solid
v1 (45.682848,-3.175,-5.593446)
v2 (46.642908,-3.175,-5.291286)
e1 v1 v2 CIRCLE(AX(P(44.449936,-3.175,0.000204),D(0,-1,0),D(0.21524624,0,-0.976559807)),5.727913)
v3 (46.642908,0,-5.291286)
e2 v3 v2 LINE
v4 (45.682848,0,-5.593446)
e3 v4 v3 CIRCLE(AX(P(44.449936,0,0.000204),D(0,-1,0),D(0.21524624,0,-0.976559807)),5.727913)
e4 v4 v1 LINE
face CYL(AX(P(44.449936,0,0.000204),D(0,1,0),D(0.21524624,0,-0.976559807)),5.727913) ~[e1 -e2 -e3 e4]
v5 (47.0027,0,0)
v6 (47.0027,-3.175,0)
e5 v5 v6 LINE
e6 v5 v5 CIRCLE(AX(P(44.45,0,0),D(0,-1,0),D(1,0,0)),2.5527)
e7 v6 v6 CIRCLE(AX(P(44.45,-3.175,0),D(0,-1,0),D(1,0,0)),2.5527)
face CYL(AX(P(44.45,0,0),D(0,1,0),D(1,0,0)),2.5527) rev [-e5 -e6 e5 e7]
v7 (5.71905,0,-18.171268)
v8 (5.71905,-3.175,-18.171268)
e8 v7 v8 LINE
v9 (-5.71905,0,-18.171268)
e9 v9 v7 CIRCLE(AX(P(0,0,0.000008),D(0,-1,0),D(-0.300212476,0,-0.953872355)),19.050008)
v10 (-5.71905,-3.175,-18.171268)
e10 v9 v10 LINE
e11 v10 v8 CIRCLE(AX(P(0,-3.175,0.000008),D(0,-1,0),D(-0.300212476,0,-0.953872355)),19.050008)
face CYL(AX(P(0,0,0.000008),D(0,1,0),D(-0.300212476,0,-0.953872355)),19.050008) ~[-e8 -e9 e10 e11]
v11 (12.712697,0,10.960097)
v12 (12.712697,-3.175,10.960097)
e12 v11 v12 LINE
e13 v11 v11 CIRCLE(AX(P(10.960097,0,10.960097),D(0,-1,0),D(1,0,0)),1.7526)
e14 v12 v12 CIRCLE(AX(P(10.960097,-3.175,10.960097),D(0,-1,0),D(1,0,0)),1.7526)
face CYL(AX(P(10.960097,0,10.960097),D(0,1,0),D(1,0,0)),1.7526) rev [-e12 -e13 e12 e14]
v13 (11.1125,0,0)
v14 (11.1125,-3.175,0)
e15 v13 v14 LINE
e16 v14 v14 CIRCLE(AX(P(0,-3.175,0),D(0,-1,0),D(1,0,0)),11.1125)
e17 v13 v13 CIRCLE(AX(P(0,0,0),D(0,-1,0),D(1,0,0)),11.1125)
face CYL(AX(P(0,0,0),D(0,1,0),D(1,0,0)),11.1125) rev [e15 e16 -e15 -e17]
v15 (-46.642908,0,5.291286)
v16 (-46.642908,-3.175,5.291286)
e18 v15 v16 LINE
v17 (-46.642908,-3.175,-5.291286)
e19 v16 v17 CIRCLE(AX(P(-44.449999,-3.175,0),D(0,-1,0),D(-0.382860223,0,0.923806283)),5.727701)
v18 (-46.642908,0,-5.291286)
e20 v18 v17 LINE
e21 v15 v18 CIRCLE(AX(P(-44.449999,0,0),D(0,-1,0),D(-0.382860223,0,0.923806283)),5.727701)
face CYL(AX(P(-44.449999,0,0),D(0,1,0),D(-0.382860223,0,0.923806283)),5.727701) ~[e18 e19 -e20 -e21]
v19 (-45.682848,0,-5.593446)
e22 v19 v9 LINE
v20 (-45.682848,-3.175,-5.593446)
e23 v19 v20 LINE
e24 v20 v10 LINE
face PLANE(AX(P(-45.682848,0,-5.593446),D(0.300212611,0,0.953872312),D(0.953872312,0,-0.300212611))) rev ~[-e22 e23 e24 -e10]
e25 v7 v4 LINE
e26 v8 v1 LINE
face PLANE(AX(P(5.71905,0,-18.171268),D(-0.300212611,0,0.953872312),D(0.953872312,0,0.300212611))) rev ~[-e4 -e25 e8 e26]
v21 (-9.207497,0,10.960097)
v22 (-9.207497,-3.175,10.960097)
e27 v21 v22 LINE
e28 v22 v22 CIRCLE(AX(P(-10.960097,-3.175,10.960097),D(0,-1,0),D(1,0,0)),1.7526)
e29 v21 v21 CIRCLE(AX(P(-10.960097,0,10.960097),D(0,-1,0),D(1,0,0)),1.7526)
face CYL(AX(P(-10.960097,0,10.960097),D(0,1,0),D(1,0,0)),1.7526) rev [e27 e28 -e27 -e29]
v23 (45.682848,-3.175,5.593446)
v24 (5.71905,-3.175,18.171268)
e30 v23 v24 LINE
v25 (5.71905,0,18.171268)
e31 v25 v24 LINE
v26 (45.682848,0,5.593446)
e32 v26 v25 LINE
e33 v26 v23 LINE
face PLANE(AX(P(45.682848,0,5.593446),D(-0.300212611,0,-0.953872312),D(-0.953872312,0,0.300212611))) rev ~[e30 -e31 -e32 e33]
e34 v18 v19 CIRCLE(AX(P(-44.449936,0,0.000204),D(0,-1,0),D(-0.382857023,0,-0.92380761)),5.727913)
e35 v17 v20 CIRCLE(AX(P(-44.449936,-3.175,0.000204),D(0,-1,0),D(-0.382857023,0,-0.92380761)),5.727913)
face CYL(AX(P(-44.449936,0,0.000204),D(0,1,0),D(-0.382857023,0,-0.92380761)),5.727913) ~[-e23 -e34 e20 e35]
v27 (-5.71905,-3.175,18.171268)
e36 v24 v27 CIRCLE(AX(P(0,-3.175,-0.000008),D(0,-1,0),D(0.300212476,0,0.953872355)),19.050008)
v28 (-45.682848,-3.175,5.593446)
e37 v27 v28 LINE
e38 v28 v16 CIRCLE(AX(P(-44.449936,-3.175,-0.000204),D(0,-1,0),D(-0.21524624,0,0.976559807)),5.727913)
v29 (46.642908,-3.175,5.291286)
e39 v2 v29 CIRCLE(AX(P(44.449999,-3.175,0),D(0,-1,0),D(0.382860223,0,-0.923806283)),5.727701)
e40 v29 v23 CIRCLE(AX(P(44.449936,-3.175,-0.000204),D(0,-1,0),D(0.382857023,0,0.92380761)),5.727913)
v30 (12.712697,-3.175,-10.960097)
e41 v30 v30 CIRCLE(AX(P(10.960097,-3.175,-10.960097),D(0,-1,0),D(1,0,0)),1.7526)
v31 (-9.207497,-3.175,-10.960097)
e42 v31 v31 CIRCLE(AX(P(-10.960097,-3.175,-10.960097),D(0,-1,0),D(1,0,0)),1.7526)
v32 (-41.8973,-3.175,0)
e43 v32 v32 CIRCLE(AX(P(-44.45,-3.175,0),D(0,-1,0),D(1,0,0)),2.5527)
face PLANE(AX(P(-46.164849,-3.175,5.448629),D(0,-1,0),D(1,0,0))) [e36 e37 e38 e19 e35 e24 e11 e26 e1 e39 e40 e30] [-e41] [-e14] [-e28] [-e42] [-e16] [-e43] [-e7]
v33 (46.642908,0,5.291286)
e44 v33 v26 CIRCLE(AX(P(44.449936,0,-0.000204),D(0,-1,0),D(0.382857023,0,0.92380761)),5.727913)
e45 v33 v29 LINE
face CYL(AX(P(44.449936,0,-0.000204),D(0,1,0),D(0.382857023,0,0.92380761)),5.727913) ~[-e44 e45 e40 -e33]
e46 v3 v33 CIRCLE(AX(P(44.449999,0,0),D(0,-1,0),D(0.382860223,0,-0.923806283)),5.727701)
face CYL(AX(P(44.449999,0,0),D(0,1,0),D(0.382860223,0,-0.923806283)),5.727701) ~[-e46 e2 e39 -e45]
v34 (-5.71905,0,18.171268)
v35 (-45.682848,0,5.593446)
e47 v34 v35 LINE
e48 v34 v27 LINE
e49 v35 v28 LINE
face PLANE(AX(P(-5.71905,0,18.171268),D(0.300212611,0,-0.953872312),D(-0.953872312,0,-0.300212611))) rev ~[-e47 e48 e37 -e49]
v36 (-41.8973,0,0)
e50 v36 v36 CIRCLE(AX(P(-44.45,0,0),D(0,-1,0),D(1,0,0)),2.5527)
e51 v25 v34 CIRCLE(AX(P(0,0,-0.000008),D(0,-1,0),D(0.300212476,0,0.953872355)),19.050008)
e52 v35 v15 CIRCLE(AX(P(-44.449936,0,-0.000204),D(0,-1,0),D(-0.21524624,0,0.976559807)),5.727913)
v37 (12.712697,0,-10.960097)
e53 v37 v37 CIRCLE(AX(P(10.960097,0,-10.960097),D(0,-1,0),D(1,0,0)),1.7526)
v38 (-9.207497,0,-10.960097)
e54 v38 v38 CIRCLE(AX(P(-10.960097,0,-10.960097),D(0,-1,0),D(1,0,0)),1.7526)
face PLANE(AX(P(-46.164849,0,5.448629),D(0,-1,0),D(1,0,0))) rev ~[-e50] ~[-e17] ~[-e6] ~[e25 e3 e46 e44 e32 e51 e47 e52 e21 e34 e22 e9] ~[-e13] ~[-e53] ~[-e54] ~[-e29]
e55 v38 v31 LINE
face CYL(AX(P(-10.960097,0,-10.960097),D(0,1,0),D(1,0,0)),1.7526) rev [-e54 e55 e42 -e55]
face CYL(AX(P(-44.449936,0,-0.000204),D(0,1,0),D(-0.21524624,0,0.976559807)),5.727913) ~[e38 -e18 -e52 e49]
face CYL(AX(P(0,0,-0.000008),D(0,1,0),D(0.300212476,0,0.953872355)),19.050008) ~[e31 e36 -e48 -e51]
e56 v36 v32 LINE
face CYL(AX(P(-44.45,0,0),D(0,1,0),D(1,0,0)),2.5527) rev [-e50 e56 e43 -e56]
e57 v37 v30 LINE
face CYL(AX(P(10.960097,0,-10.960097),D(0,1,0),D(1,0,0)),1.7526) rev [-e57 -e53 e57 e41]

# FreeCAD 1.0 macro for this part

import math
import FreeCAD as App
import Part
import Sketcher
from FreeCAD import Vector
Q = App.Units.Quantity

doc = App.newDocument("Part")
body = doc.addObject("PartDesign::Body", "Body")

# Sketch on XZ plane
sketch1 = doc.addObject("Sketcher::SketchObject", "Sketch")
body.addObject(sketch1)
sketch1.AttachmentSupport = (doc.XZ_Plane, [""])
sketch1.MapMode = "FlatFace"
sketch1.addGeometry([
    Part.ArcOfCircle(Part.Circle(Vector(-44.449936, -0.000204, 0), Vector(0, 0, 1), 5.727913), math.radians(102.429974), math.radians(112.510766)),  # 0
    Part.ArcOfCircle(Part.Circle(Vector(-44.449999, 0, 0), Vector(0, 0, 1), 5.727701), math.radians(112.510964), math.radians(247.489036)),  # 1
    Part.ArcOfCircle(Part.Circle(Vector(-44.449936, 0.000204, 0), Vector(0, 0, 1), 5.727913), math.radians(-112.510766), math.radians(-102.429974)),  # 2
    Part.LineSegment(Vector(-45.682848, -5.593446, 0), Vector(-5.71905, -18.171268, 0)),  # 3
    Part.ArcOfCircle(Part.Circle(Vector(0, 0.000008, 0), Vector(0, 0, 1), 19.050008), math.radians(-107.470365), math.radians(-72.529635)),  # 4
    Part.LineSegment(Vector(5.71905, -18.171268, 0), Vector(45.682848, -5.593446, 0)),  # 5
    Part.ArcOfCircle(Part.Circle(Vector(44.449936, 0.000204, 0), Vector(0, 0, 1), 5.727913), math.radians(-77.570026), math.radians(-67.489234)),  # 6
    Part.ArcOfCircle(Part.Circle(Vector(44.449999, 0, 0), Vector(0, 0, 1), 5.727701), math.radians(-67.489036), math.radians(67.489036)),  # 7
    Part.ArcOfCircle(Part.Circle(Vector(44.449936, -0.000204, 0), Vector(0, 0, 1), 5.727913), math.radians(67.489234), math.radians(77.570026)),  # 8
    Part.LineSegment(Vector(45.682848, 5.593446, 0), Vector(5.71905, 18.171268, 0)),  # 9
    Part.ArcOfCircle(Part.Circle(Vector(0, -0.000008, 0), Vector(0, 0, 1), 19.050008), math.radians(72.529635), math.radians(107.470365)),  # 10
    Part.LineSegment(Vector(-5.71905, 18.171268, 0), Vector(-45.682848, 5.593446, 0)),  # 11
    Part.Circle(Vector(-10.960097, -10.960097, 0), Vector(0, 0, 1), 1.7526),  # 12
    Part.Circle(Vector(10.960097, -10.960097, 0), Vector(0, 0, 1), 1.7526),  # 13
    Part.Circle(Vector(-44.45, 0, 0), Vector(0, 0, 1), 2.5527),  # 14
    Part.Circle(Vector(-10.960097, 10.960097, 0), Vector(0, 0, 1), 1.7526),  # 15
    Part.Circle(Vector(0, 0, 0), Vector(0, 0, 1), 11.1125),  # 16
    Part.Circle(Vector(44.45, 0, 0), Vector(0, 0, 1), 2.5527),  # 17
    Part.Circle(Vector(10.960097, 10.960097, 0), Vector(0, 0, 1), 1.7526),  # 18
], False)
sketch1.addConstraint([
    Sketcher.Constraint("Coincident", 0, 2, 1, 1),
    Sketcher.Constraint("Coincident", 1, 2, 2, 1),
    Sketcher.Constraint("Coincident", 2, 2, 3, 1),
    Sketcher.Constraint("Coincident", 3, 2, 4, 1),
    Sketcher.Constraint("Coincident", 4, 2, 5, 1),
    Sketcher.Constraint("Coincident", 5, 2, 6, 1),
    Sketcher.Constraint("Coincident", 6, 2, 7, 1),
    Sketcher.Constraint("Coincident", 7, 2, 8, 1),
    Sketcher.Constraint("Coincident", 8, 2, 9, 1),
    Sketcher.Constraint("Coincident", 9, 2, 10, 1),
    Sketcher.Constraint("Coincident", 10, 2, 11, 1),
    Sketcher.Constraint("Coincident", 11, 2, 0, 1),
    Sketcher.Constraint("Coincident", 4, 3, -1, 1),
    Sketcher.Constraint("Coincident", 10, 3, -1, 1),
    Sketcher.Constraint("Coincident", 16, 3, -1, 1),
    Sketcher.Constraint("Coincident", 14, 3, 1, 3),
    Sketcher.Constraint("Coincident", 17, 3, 7, 3),
    Sketcher.Constraint("PointOnObject", 1, 3, -1),
    Sketcher.Constraint("PointOnObject", 7, 3, -1),
    Sketcher.Constraint("Diameter", 12, Q("0.138 in")),
    Sketcher.Constraint("Diameter", 13, Q("0.138 in")),
    Sketcher.Constraint("Diameter", 14, Q("0.201 in")),
    Sketcher.Constraint("Diameter", 15, Q("0.138 in")),
    Sketcher.Constraint("Diameter", 16, Q("0.875 in")),
    Sketcher.Constraint("Diameter", 17, Q("0.201 in")),
    Sketcher.Constraint("Diameter", 18, Q("0.138 in")),
    Sketcher.Constraint("Radius", 1, Q("0.2255 in")),
    Sketcher.Constraint("Radius", 7, Q("0.2255 in")),
    Sketcher.Constraint("DistanceX", 1, 3, 7, 3, Q("3.4999999 in")),
    Sketcher.Constraint("DistanceX", 1, 3, -1, 1, Q("1.75 in")),
    Sketcher.Constraint("DistanceX", 12, 3, -1, 1, Q("0.4314999 in")),
    Sketcher.Constraint("DistanceY", 12, 3, -1, 1, Q("0.4314999 in")),
    Sketcher.Constraint("DistanceX", -1, 1, 13, 3, Q("0.4314999 in")),
    Sketcher.Constraint("DistanceY", 13, 3, -1, 1, Q("0.4314999 in")),
    Sketcher.Constraint("DistanceX", 15, 3, -1, 1, Q("0.4314999 in")),
    Sketcher.Constraint("DistanceY", -1, 1, 15, 3, Q("0.4314999 in")),
    Sketcher.Constraint("DistanceX", -1, 1, 18, 3, Q("0.4314999 in")),
    Sketcher.Constraint("DistanceY", -1, 1, 18, 3, Q("0.4314999 in")),
    Sketcher.Constraint("Radius", 0, 5.727913),
    Sketcher.Constraint("Radius", 2, 5.727913),
    Sketcher.Constraint("Radius", 4, 19.050008),
    Sketcher.Constraint("Radius", 6, 5.727913),
    Sketcher.Constraint("Radius", 8, 5.727913),
    Sketcher.Constraint("Radius", 10, 19.050008),
    Sketcher.Constraint("DistanceY", 12, 3, 2, 3, 10.960301),
    Sketcher.Constraint("DistanceX", 3, 2, 4, 2, 11.4381),
    Sketcher.Constraint("DistanceX", 10, 2, 9, 2, 11.4381),
    Sketcher.Constraint("Distance", 3, 41.896381),
    Sketcher.Constraint("Distance", 5, 41.896381),
    Sketcher.Constraint("Distance", 9, 41.896381),
    Sketcher.Constraint("Distance", 11, 41.896381),
    Sketcher.Constraint("DistanceX", 1, 2, -1, 1, 46.642908),
    Sketcher.Constraint("DistanceX", 3, 2, -1, 1, 5.71905),
    Sketcher.Constraint("DistanceX", -1, 1, 7, 2, 46.642908),
    Sketcher.Constraint("DistanceX", -1, 1, 9, 2, 5.71905),
    Sketcher.Constraint("DistanceY", 0, 3, 4, 3, 0.000211),
    Sketcher.Constraint("DistanceY", 8, 3, 4, 3, 0.000211),
    Sketcher.Constraint("DistanceY", 10, 3, 6, 3, 0.000211),
    Sketcher.Constraint("DistanceX", 0, 2, 2, 3, 2.192972),
    Sketcher.Constraint("DistanceX", 5, 2, 6, 2, 0.96006),
])
pad1 = doc.addObject("PartDesign::Pad", "Pad")
body.addObject(pad1)
pad1.Profile = sketch1
pad1.Length = Q("0.125 in")

doc.recompute()
